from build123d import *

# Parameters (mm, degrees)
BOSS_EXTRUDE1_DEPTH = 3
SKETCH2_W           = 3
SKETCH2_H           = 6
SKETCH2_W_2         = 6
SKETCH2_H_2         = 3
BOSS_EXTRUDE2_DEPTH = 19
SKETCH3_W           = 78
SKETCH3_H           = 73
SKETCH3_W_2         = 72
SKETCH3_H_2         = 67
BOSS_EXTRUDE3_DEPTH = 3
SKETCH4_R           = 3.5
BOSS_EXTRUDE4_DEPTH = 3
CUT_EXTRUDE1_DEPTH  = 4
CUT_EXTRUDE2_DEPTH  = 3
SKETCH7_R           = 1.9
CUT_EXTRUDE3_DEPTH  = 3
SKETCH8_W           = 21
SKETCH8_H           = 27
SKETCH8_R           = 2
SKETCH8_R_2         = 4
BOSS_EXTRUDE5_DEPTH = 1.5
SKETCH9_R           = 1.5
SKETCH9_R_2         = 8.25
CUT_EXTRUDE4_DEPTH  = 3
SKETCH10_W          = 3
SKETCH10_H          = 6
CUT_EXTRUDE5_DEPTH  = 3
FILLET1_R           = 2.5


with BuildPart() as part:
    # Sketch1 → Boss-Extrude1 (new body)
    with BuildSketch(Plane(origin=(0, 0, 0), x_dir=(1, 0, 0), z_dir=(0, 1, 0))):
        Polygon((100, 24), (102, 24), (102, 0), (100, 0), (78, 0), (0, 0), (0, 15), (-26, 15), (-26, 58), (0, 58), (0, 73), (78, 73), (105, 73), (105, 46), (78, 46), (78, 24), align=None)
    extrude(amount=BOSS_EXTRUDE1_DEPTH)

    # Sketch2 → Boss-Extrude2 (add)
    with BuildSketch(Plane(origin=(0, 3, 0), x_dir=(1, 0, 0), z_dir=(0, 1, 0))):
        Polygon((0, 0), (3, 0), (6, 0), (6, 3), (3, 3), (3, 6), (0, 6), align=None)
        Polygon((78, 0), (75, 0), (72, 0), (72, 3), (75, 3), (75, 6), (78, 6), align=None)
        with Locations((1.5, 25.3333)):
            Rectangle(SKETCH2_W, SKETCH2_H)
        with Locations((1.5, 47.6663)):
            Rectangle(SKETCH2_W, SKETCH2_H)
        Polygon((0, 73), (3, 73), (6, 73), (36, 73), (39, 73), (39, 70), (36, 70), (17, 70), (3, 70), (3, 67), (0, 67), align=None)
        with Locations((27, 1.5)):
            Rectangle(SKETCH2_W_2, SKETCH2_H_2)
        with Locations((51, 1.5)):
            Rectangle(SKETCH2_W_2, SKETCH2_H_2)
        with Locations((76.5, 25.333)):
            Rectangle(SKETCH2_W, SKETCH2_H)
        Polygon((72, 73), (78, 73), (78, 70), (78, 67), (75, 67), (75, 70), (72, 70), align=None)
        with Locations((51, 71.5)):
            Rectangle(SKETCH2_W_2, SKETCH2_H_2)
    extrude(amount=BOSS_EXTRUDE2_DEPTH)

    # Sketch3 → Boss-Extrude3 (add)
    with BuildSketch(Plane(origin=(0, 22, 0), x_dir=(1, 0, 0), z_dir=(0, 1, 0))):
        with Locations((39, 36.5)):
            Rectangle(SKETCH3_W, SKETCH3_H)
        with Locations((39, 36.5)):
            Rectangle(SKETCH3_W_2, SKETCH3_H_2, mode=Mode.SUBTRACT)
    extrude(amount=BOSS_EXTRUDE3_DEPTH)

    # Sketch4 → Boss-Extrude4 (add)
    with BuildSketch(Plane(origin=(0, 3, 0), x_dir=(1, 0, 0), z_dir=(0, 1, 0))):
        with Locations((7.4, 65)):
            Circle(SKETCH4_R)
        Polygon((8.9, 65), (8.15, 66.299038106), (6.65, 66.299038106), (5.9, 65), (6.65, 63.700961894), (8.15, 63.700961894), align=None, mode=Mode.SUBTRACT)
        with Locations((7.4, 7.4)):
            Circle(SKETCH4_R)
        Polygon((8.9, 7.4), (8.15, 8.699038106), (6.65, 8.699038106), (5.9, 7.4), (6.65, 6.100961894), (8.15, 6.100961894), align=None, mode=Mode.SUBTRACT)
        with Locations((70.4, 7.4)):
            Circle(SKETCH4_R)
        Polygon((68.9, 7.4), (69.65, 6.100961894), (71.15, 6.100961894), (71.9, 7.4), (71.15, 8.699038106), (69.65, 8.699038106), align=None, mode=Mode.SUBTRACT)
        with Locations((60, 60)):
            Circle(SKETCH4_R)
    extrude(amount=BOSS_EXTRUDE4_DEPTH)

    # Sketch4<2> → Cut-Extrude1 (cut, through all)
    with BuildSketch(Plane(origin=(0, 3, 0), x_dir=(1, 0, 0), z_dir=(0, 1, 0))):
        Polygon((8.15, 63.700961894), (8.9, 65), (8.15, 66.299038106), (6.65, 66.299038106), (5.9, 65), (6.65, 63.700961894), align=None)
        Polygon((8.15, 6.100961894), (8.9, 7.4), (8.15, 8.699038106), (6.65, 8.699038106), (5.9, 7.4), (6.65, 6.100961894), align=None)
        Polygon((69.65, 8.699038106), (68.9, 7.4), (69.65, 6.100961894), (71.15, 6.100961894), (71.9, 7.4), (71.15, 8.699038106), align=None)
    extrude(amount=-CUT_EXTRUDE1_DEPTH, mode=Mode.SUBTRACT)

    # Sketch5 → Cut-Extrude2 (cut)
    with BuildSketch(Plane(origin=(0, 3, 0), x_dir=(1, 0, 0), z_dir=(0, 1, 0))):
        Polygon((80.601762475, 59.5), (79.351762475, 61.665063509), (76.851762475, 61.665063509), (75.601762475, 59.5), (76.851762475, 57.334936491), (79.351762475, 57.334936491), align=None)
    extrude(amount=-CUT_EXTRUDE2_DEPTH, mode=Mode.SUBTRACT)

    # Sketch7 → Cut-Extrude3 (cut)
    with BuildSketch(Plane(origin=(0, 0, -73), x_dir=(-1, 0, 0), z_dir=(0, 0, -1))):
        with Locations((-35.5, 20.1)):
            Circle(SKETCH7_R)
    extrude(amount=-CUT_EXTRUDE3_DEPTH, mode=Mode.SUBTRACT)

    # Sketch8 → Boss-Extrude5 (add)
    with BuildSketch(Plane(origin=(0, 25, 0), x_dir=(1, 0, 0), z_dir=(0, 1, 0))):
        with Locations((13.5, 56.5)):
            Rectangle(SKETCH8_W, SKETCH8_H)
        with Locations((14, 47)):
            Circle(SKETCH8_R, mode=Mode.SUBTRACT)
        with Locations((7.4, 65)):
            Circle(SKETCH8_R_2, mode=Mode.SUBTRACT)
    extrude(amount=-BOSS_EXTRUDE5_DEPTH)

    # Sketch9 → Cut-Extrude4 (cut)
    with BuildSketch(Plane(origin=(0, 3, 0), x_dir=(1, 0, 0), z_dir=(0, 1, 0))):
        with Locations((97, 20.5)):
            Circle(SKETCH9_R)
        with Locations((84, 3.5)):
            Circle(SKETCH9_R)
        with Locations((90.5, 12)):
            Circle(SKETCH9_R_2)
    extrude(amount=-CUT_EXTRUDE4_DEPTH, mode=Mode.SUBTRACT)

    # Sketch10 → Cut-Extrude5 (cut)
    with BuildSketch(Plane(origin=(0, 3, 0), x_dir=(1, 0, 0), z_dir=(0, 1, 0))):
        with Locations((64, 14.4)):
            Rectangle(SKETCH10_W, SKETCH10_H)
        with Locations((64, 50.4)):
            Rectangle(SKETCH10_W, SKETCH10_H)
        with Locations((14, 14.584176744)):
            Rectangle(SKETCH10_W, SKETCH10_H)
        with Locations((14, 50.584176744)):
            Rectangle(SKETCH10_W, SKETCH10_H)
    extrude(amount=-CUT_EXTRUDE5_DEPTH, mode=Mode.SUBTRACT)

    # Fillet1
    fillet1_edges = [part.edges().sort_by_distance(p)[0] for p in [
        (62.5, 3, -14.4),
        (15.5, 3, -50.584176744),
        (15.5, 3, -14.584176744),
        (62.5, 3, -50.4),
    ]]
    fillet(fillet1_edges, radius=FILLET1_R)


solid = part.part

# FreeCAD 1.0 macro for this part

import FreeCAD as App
import Part
import Sketcher
Q = App.Units.Quantity


def edges_at(feature, points):
    """Names of the edges that pass closest to the given points."""
    edges = feature.Shape.Edges
    near = lambda p: min(range(len(edges)), key=lambda i: edges[i].distToShape(Part.Vertex(*p))[0])
    return sorted({f"Edge{near(p) + 1}" for p in points})

doc = App.newDocument("Part")
body = doc.addObject("PartDesign::Body", "Body")

# Sketch on XZ plane
sketch1 = body.newObject("Sketcher::SketchObject", "Sketch")
sketch1.AttachmentSupport = (doc.getObject("XZ_Plane"), [""])
sketch1.MapMode = "FlatFace"
sketch1.addGeometry(Part.LineSegment(App.Vector(102, -24, 0), App.Vector(78, -24, 0)), False)
sketch1.addGeometry(Part.LineSegment(App.Vector(78, -24, 0), App.Vector(78, -46, 0)), False)
sketch1.addGeometry(Part.LineSegment(App.Vector(78, -46, 0), App.Vector(105, -46, 0)), False)
sketch1.addGeometry(Part.LineSegment(App.Vector(105, -46, 0), App.Vector(105, -73, 0)), False)
sketch1.addGeometry(Part.LineSegment(App.Vector(105, -73, 0), App.Vector(0, -73, 0)), False)
sketch1.addGeometry(Part.LineSegment(App.Vector(0, -73, 0), App.Vector(0, -58, 0)), False)
sketch1.addGeometry(Part.LineSegment(App.Vector(0, -58, 0), App.Vector(-26, -58, 0)), False)
sketch1.addGeometry(Part.LineSegment(App.Vector(-26, -58, 0), App.Vector(-26, -15, 0)), False)
sketch1.addGeometry(Part.LineSegment(App.Vector(-26, -15, 0), App.Vector(0, -15, 0)), False)
sketch1.addGeometry(Part.LineSegment(App.Vector(0, -15, 0), App.Vector(0, 0, 0)), False)
sketch1.addGeometry(Part.LineSegment(App.Vector(0, 0, 0), App.Vector(102, 0, 0)), False)
sketch1.addGeometry(Part.LineSegment(App.Vector(102, 0, 0), App.Vector(102, -24, 0)), False)
sketch1.addConstraint(Sketcher.Constraint("Coincident", 0, 2, 1, 1))
sketch1.addConstraint(Sketcher.Constraint("Coincident", 1, 2, 2, 1))
sketch1.addConstraint(Sketcher.Constraint("Coincident", 2, 2, 3, 1))
sketch1.addConstraint(Sketcher.Constraint("Coincident", 3, 2, 4, 1))
sketch1.addConstraint(Sketcher.Constraint("Coincident", 4, 2, 5, 1))
sketch1.addConstraint(Sketcher.Constraint("Coincident", 5, 2, 6, 1))
sketch1.addConstraint(Sketcher.Constraint("Coincident", 6, 2, 7, 1))
sketch1.addConstraint(Sketcher.Constraint("Coincident", 7, 2, 8, 1))
sketch1.addConstraint(Sketcher.Constraint("Coincident", 8, 2, 9, 1))
sketch1.addConstraint(Sketcher.Constraint("Coincident", 9, 2, 10, 1))
sketch1.addConstraint(Sketcher.Constraint("Coincident", 10, 2, 11, 1))
sketch1.addConstraint(Sketcher.Constraint("Coincident", 11, 2, 0, 1))
sketch1.addConstraint(Sketcher.Constraint("Horizontal", 0))
sketch1.addConstraint(Sketcher.Constraint("Vertical", 1))
sketch1.addConstraint(Sketcher.Constraint("Horizontal", 2))
sketch1.addConstraint(Sketcher.Constraint("Vertical", 3))
sketch1.addConstraint(Sketcher.Constraint("Horizontal", 4))
sketch1.addConstraint(Sketcher.Constraint("Vertical", 5))
sketch1.addConstraint(Sketcher.Constraint("Horizontal", 6))
sketch1.addConstraint(Sketcher.Constraint("Vertical", 7))
sketch1.addConstraint(Sketcher.Constraint("Horizontal", 8))
sketch1.addConstraint(Sketcher.Constraint("Vertical", 9))
sketch1.addConstraint(Sketcher.Constraint("Horizontal", 10))
sketch1.addConstraint(Sketcher.Constraint("Vertical", 11))
sketch1.addConstraint(Sketcher.Constraint("Coincident", 9, 2, -1, 1))
sketch1.addConstraint(Sketcher.Constraint("PointOnObject", 4, 2, -2))
sketch1.addConstraint(Sketcher.Constraint("Equal", 2, 3))
sketch1.addConstraint(Sketcher.Constraint("Equal", 5, 9))
sketch1.addConstraint(Sketcher.Constraint("Equal", 0, 11))
sketch1.addConstraint(Sketcher.Constraint("DistanceX", 0, 2, 0, 1, Q("24 mm")))
sketch1.addConstraint(Sketcher.Constraint("DistanceX", 2, 1, 2, 2, Q("27 mm")))
sketch1.addConstraint(Sketcher.Constraint("DistanceX", 4, 2, 4, 1, Q("105 mm")))
sketch1.addConstraint(Sketcher.Constraint("DistanceX", 6, 2, 6, 1, Q("26 mm")))
sketch1.addConstraint(Sketcher.Constraint("DistanceY", 1, 2, 1, 1, Q("22 mm")))
sketch1.addConstraint(Sketcher.Constraint("DistanceY", 5, 1, 5, 2, Q("15 mm")))
pad1 = body.newObject("PartDesign::Pad", "Pad")
pad1.Profile = sketch1
pad1.Length = 3
pad1.Reversed = True

# Sketch on XZ plane
sketch2 = body.newObject("Sketcher::SketchObject", "Sketch001")
sketch2.AttachmentSupport = (doc.getObject("XZ_Plane"), [""])
sketch2.MapMode = "FlatFace"
sketch2.AttachmentOffset = App.Placement(App.Vector(0, 0, -3), App.Rotation())
sketch2.addGeometry(Part.LineSegment(App.Vector(0, 0, 0), App.Vector(6, 0, 0)), False)
sketch2.addGeometry(Part.LineSegment(App.Vector(6, 0, 0), App.Vector(6, -3, 0)), False)
sketch2.addGeometry(Part.LineSegment(App.Vector(6, -3, 0), App.Vector(3, -3, 0)), False)
sketch2.addGeometry(Part.LineSegment(App.Vector(3, -3, 0), App.Vector(3, -6, 0)), False)
sketch2.addGeometry(Part.LineSegment(App.Vector(3, -6, 0), App.Vector(0, -6, 0)), False)
sketch2.addGeometry(Part.LineSegment(App.Vector(0, -6, 0), App.Vector(0, 0, 0)), False)
sketch2.addGeometry(Part.LineSegment(App.Vector(72, 0, 0), App.Vector(78, 0, 0)), False)
sketch2.addGeometry(Part.LineSegment(App.Vector(78, 0, 0), App.Vector(78, -6, 0)), False)
sketch2.addGeometry(Part.LineSegment(App.Vector(78, -6, 0), App.Vector(75, -6, 0)), False)
sketch2.addGeometry(Part.LineSegment(App.Vector(75, -6, 0), App.Vector(75, -3, 0)), False)
sketch2.addGeometry(Part.LineSegment(App.Vector(75, -3, 0), App.Vector(72, -3, 0)), False)
sketch2.addGeometry(Part.LineSegment(App.Vector(72, -3, 0), App.Vector(72, 0, 0)), False)
sketch2.addGeometry(Part.LineSegment(App.Vector(0, -28.3, 0), App.Vector(0, -22.3, 0)), False)
sketch2.addGeometry(Part.LineSegment(App.Vector(0, -22.3, 0), App.Vector(3, -22.3, 0)), False)
sketch2.addGeometry(Part.LineSegment(App.Vector(3, -22.3, 0), App.Vector(3, -28.3, 0)), False)
sketch2.addGeometry(Part.LineSegment(App.Vector(3, -28.3, 0), App.Vector(0, -28.3, 0)), False)
sketch2.addGeometry(Part.LineSegment(App.Vector(0, -50.7, 0), App.Vector(0, -44.7, 0)), False)
sketch2.addGeometry(Part.LineSegment(App.Vector(0, -44.7, 0), App.Vector(3, -44.7, 0)), False)
sketch2.addGeometry(Part.LineSegment(App.Vector(3, -44.7, 0), App.Vector(3, -50.7, 0)), False)
sketch2.addGeometry(Part.LineSegment(App.Vector(3, -50.7, 0), App.Vector(0, -50.7, 0)), False)
sketch2.addGeometry(Part.LineSegment(App.Vector(39, -73, 0), App.Vector(0, -73, 0)), False)
sketch2.addGeometry(Part.LineSegment(App.Vector(0, -73, 0), App.Vector(0, -67, 0)), False)
sketch2.addGeometry(Part.LineSegment(App.Vector(0, -67, 0), App.Vector(3, -67, 0)), False)
sketch2.addGeometry(Part.LineSegment(App.Vector(3, -67, 0), App.Vector(3, -70, 0)), False)
sketch2.addGeometry(Part.LineSegment(App.Vector(3, -70, 0), App.Vector(39, -70, 0)), False)
sketch2.addGeometry(Part.LineSegment(App.Vector(39, -70, 0), App.Vector(39, -73, 0)), False)
sketch2.addGeometry(Part.LineSegment(App.Vector(24, -3, 0), App.Vector(24, 0, 0)), False)
sketch2.addGeometry(Part.LineSegment(App.Vector(24, 0, 0), App.Vector(30, 0, 0)), False)
sketch2.addGeometry(Part.LineSegment(App.Vector(30, 0, 0), App.Vector(30, -3, 0)), False)
sketch2.addGeometry(Part.LineSegment(App.Vector(30, -3, 0), App.Vector(24, -3, 0)), False)
sketch2.addGeometry(Part.LineSegment(App.Vector(48, -3, 0), App.Vector(48, 0, 0)), False)
sketch2.addGeometry(Part.LineSegment(App.Vector(48, 0, 0), App.Vector(54, 0, 0)), False)
sketch2.addGeometry(Part.LineSegment(App.Vector(54, 0, 0), App.Vector(54, -3, 0)), False)
sketch2.addGeometry(Part.LineSegment(App.Vector(54, -3, 0), App.Vector(48, -3, 0)), False)
sketch2.addGeometry(Part.LineSegment(App.Vector(75, -28.3, 0), App.Vector(75, -22.3, 0)), False)
sketch2.addGeometry(Part.LineSegment(App.Vector(75, -22.3, 0), App.Vector(78, -22.3, 0)), False)
sketch2.addGeometry(Part.LineSegment(App.Vector(78, -22.3, 0), App.Vector(78, -28.3, 0)), False)
sketch2.addGeometry(Part.LineSegment(App.Vector(78, -28.3, 0), App.Vector(75, -28.3, 0)), False)
sketch2.addGeometry(Part.LineSegment(App.Vector(78, -73, 0), App.Vector(72, -73, 0)), False)
sketch2.addGeometry(Part.LineSegment(App.Vector(72, -73, 0), App.Vector(72, -70, 0)), False)
sketch2.addGeometry(Part.LineSegment(App.Vector(72, -70, 0), App.Vector(75, -70, 0)), False)
sketch2.addGeometry(Part.LineSegment(App.Vector(75, -70, 0), App.Vector(75, -67, 0)), False)
sketch2.addGeometry(Part.LineSegment(App.Vector(75, -67, 0), App.Vector(78, -67, 0)), False)
sketch2.addGeometry(Part.LineSegment(App.Vector(78, -67, 0), App.Vector(78, -73, 0)), False)
sketch2.addGeometry(Part.LineSegment(App.Vector(48, -73, 0), App.Vector(48, -70, 0)), False)
sketch2.addGeometry(Part.LineSegment(App.Vector(48, -70, 0), App.Vector(54, -70, 0)), False)
sketch2.addGeometry(Part.LineSegment(App.Vector(54, -70, 0), App.Vector(54, -73, 0)), False)
sketch2.addGeometry(Part.LineSegment(App.Vector(54, -73, 0), App.Vector(48, -73, 0)), False)
sketch2.addConstraint(Sketcher.Constraint("Coincident", 0, 2, 1, 1))
sketch2.addConstraint(Sketcher.Constraint("Coincident", 1, 2, 2, 1))
sketch2.addConstraint(Sketcher.Constraint("Coincident", 2, 2, 3, 1))
sketch2.addConstraint(Sketcher.Constraint("Coincident", 3, 2, 4, 1))
sketch2.addConstraint(Sketcher.Constraint("Coincident", 4, 2, 5, 1))
sketch2.addConstraint(Sketcher.Constraint("Coincident", 5, 2, 0, 1))
sketch2.addConstraint(Sketcher.Constraint("Coincident", 6, 2, 7, 1))
sketch2.addConstraint(Sketcher.Constraint("Coincident", 7, 2, 8, 1))
sketch2.addConstraint(Sketcher.Constraint("Coincident", 8, 2, 9, 1))
sketch2.addConstraint(Sketcher.Constraint("Coincident", 9, 2, 10, 1))
sketch2.addConstraint(Sketcher.Constraint("Coincident", 10, 2, 11, 1))
sketch2.addConstraint(Sketcher.Constraint("Coincident", 11, 2, 6, 1))
sketch2.addConstraint(Sketcher.Constraint("Coincident", 12, 2, 13, 1))
sketch2.addConstraint(Sketcher.Constraint("Coincident", 13, 2, 14, 1))
sketch2.addConstraint(Sketcher.Constraint("Coincident", 14, 2, 15, 1))
sketch2.addConstraint(Sketcher.Constraint("Coincident", 15, 2, 12, 1))
sketch2.addConstraint(Sketcher.Constraint("Coincident", 16, 2, 17, 1))
sketch2.addConstraint(Sketcher.Constraint("Coincident", 17, 2, 18, 1))
sketch2.addConstraint(Sketcher.Constraint("Coincident", 18, 2, 19, 1))
sketch2.addConstraint(Sketcher.Constraint("Coincident", 19, 2, 16, 1))
sketch2.addConstraint(Sketcher.Constraint("Coincident", 20, 2, 21, 1))
sketch2.addConstraint(Sketcher.Constraint("Coincident", 21, 2, 22, 1))
sketch2.addConstraint(Sketcher.Constraint("Coincident", 22, 2, 23, 1))
sketch2.addConstraint(Sketcher.Constraint("Coincident", 23, 2, 24, 1))
sketch2.addConstraint(Sketcher.Constraint("Coincident", 24, 2, 25, 1))
sketch2.addConstraint(Sketcher.Constraint("Coincident", 25, 2, 20, 1))
sketch2.addConstraint(Sketcher.Constraint("Coincident", 26, 2, 27, 1))
sketch2.addConstraint(Sketcher.Constraint("Coincident", 27, 2, 28, 1))
sketch2.addConstraint(Sketcher.Constraint("Coincident", 28, 2, 29, 1))
sketch2.addConstraint(Sketcher.Constraint("Coincident", 29, 2, 26, 1))
sketch2.addConstraint(Sketcher.Constraint("Coincident", 30, 2, 31, 1))
sketch2.addConstraint(Sketcher.Constraint("Coincident", 31, 2, 32, 1))
sketch2.addConstraint(Sketcher.Constraint("Coincident", 32, 2, 33, 1))
sketch2.addConstraint(Sketcher.Constraint("Coincident", 33, 2, 30, 1))
sketch2.addConstraint(Sketcher.Constraint("Coincident", 34, 2, 35, 1))
sketch2.addConstraint(Sketcher.Constraint("Coincident", 35, 2, 36, 1))
sketch2.addConstraint(Sketcher.Constraint("Coincident", 36, 2, 37, 1))
sketch2.addConstraint(Sketcher.Constraint("Coincident", 37, 2, 34, 1))
sketch2.addConstraint(Sketcher.Constraint("Coincident", 38, 2, 39, 1))
sketch2.addConstraint(Sketcher.Constraint("Coincident", 39, 2, 40, 1))
sketch2.addConstraint(Sketcher.Constraint("Coincident", 40, 2, 41, 1))
sketch2.addConstraint(Sketcher.Constraint("Coincident", 41, 2, 42, 1))
sketch2.addConstraint(Sketcher.Constraint("Coincident", 42, 2, 43, 1))
sketch2.addConstraint(Sketcher.Constraint("Coincident", 43, 2, 38, 1))
sketch2.addConstraint(Sketcher.Constraint("Coincident", 44, 2, 45, 1))
sketch2.addConstraint(Sketcher.Constraint("Coincident", 45, 2, 46, 1))
sketch2.addConstraint(Sketcher.Constraint("Coincident", 46, 2, 47, 1))
sketch2.addConstraint(Sketcher.Constraint("Coincident", 47, 2, 44, 1))
sketch2.addConstraint(Sketcher.Constraint("Horizontal", 0))
sketch2.addConstraint(Sketcher.Constraint("Vertical", 1))
sketch2.addConstraint(Sketcher.Constraint("Horizontal", 2))
sketch2.addConstraint(Sketcher.Constraint("Vertical", 3))
sketch2.addConstraint(Sketcher.Constraint("Horizontal", 4))
sketch2.addConstraint(Sketcher.Constraint("Vertical", 5))
sketch2.addConstraint(Sketcher.Constraint("Horizontal", 6))
sketch2.addConstraint(Sketcher.Constraint("Vertical", 7))
sketch2.addConstraint(Sketcher.Constraint("Horizontal", 8))
sketch2.addConstraint(Sketcher.Constraint("Vertical", 9))
sketch2.addConstraint(Sketcher.Constraint("Horizontal", 10))
sketch2.addConstraint(Sketcher.Constraint("Vertical", 11))
sketch2.addConstraint(Sketcher.Constraint("Vertical", 12))
sketch2.addConstraint(Sketcher.Constraint("Horizontal", 13))
sketch2.addConstraint(Sketcher.Constraint("Vertical", 14))
sketch2.addConstraint(Sketcher.Constraint("Horizontal", 15))
sketch2.addConstraint(Sketcher.Constraint("Vertical", 16))
sketch2.addConstraint(Sketcher.Constraint("Horizontal", 17))
sketch2.addConstraint(Sketcher.Constraint("Vertical", 18))
sketch2.addConstraint(Sketcher.Constraint("Horizontal", 19))
sketch2.addConstraint(Sketcher.Constraint("Horizontal", 20))
sketch2.addConstraint(Sketcher.Constraint("Vertical", 21))
sketch2.addConstraint(Sketcher.Constraint("Horizontal", 22))
sketch2.addConstraint(Sketcher.Constraint("Vertical", 23))
sketch2.addConstraint(Sketcher.Constraint("Horizontal", 24))
sketch2.addConstraint(Sketcher.Constraint("Vertical", 25))
sketch2.addConstraint(Sketcher.Constraint("Vertical", 26))
sketch2.addConstraint(Sketcher.Constraint("Horizontal", 27))
sketch2.addConstraint(Sketcher.Constraint("Vertical", 28))
sketch2.addConstraint(Sketcher.Constraint("Horizontal", 29))
sketch2.addConstraint(Sketcher.Constraint("Vertical", 30))
sketch2.addConstraint(Sketcher.Constraint("Horizontal", 31))
sketch2.addConstraint(Sketcher.Constraint("Vertical", 32))
sketch2.addConstraint(Sketcher.Constraint("Horizontal", 33))
sketch2.addConstraint(Sketcher.Constraint("Vertical", 34))
sketch2.addConstraint(Sketcher.Constraint("Horizontal", 35))
sketch2.addConstraint(Sketcher.Constraint("Vertical", 36))
sketch2.addConstraint(Sketcher.Constraint("Horizontal", 37))
sketch2.addConstraint(Sketcher.Constraint("Horizontal", 38))
sketch2.addConstraint(Sketcher.Constraint("Vertical", 39))
sketch2.addConstraint(Sketcher.Constraint("Horizontal", 40))
sketch2.addConstraint(Sketcher.Constraint("Vertical", 41))
sketch2.addConstraint(Sketcher.Constraint("Horizontal", 42))
sketch2.addConstraint(Sketcher.Constraint("Vertical", 43))
sketch2.addConstraint(Sketcher.Constraint("Vertical", 44))
sketch2.addConstraint(Sketcher.Constraint("Horizontal", 45))
sketch2.addConstraint(Sketcher.Constraint("Vertical", 46))
sketch2.addConstraint(Sketcher.Constraint("Horizontal", 47))
sketch2.addConstraint(Sketcher.Constraint("Coincident", 5, 2, -1, 1))
sketch2.addConstraint(Sketcher.Constraint("PointOnObject", 6, 2, -1))
sketch2.addConstraint(Sketcher.Constraint("PointOnObject", 12, 2, -2))
sketch2.addConstraint(Sketcher.Constraint("PointOnObject", 16, 2, -2))
sketch2.addConstraint(Sketcher.Constraint("PointOnObject", 20, 2, -2))
sketch2.addConstraint(Sketcher.Constraint("PointOnObject", 26, 2, -1))
sketch2.addConstraint(Sketcher.Constraint("PointOnObject", 30, 2, -1))
sketch2.addConstraint(Sketcher.Constraint("Horizontal", 4, 2, 7, 2))
sketch2.addConstraint(Sketcher.Constraint("Horizontal", 2, 2, 9, 2))
sketch2.addConstraint(Sketcher.Constraint("Horizontal", 10, 2, 28, 2))
sketch2.addConstraint(Sketcher.Constraint("Horizontal", 29, 2, 32, 2))
sketch2.addConstraint(Sketcher.Constraint("Horizontal", 25, 2, 38, 2))
sketch2.addConstraint(Sketcher.Constraint("Horizontal", 24, 2, 39, 2))
sketch2.addConstraint(Sketcher.Constraint("Horizontal", 22, 2, 41, 2))
sketch2.addConstraint(Sketcher.Constraint("Horizontal", 40, 2, 44, 2))
sketch2.addConstraint(Sketcher.Constraint("Horizontal", 43, 2, 46, 2))
sketch2.addConstraint(Sketcher.Constraint("Vertical", 3, 2, 13, 2))
sketch2.addConstraint(Sketcher.Constraint("Vertical", 14, 2, 17, 2))
sketch2.addConstraint(Sketcher.Constraint("Vertical", 18, 2, 22, 2))
sketch2.addConstraint(Sketcher.Constraint("Vertical", 9, 2, 34, 2))
sketch2.addConstraint(Sketcher.Constraint("Vertical", 7, 2, 35, 2))
sketch2.addConstraint(Sketcher.Constraint("Vertical", 11, 2, 38, 2))
sketch2.addConstraint(Sketcher.Constraint("Vertical", 37, 2, 40, 2))
sketch2.addConstraint(Sketcher.Constraint("Vertical", 36, 2, 42, 2))
sketch2.addConstraint(Sketcher.Constraint("Vertical", 33, 2, 44, 2))
sketch2.addConstraint(Sketcher.Constraint("Vertical", 32, 2, 45, 2))
sketch2.addConstraint(Sketcher.Constraint("Equal", 2, 4))
sketch2.addConstraint(Sketcher.Constraint("Equal", 0, 6))
sketch2.addConstraint(Sketcher.Constraint("Equal", 4, 8))
sketch2.addConstraint(Sketcher.Constraint("Equal", 6, 27))
sketch2.addConstraint(Sketcher.Constraint("Equal", 29, 31))
sketch2.addConstraint(Sketcher.Constraint("Equal", 42, 1))
sketch2.addConstraint(Sketcher.Constraint("Equal", 1, 3))
sketch2.addConstraint(Sketcher.Constraint("Equal", 7, 12))
sketch2.addConstraint(Sketcher.Constraint("Equal", 14, 16))
sketch2.addConstraint(Sketcher.Constraint("Equal", 18, 21))
sketch2.addConstraint(Sketcher.Constraint("Equal", 11, 23))
sketch2.addConstraint(Sketcher.Constraint("Equal", 21, 34))
sketch2.addConstraint(Sketcher.Constraint("DistanceX", 0, 1, 0, 2, Q("6 mm")))
sketch2.addConstraint(Sketcher.Constraint("DistanceX", 20, 2, 20, 1, Q("39 mm")))
sketch2.addConstraint(Sketcher.Constraint("DistanceX", -1, 1, 6, 2, Q("78 mm")))
sketch2.addConstraint(Sketcher.Constraint("DistanceY", 20, 2, -1, 1, Q("73 mm")))
sketch2.addConstraint(Sketcher.Constraint("DistanceX", -1, 1, 26, 2, Q("24 mm")))
sketch2.addConstraint(Sketcher.Constraint("DistanceX", -1, 1, 30, 2, Q("48 mm")))
sketch2.addConstraint(Sketcher.Constraint("DistanceY", 34, 2, -1, 1, Q("22.333 mm")))
sketch2.addConstraint(Sketcher.Constraint("DistanceY", 16, 2, 15, 2, Q("16.333 mm")))
sketch2.addConstraint(Sketcher.Constraint("DistanceY", 12, 2, -1, 1, Q("22.3333 mm")))
pad2 = body.newObject("PartDesign::Pad", "Pad001")
pad2.Profile = sketch2
pad2.Length = 19
pad2.Reversed = True

# Sketch on XZ plane
sketch3 = body.newObject("Sketcher::SketchObject", "Sketch002")
sketch3.AttachmentSupport = (doc.getObject("XZ_Plane"), [""])
sketch3.MapMode = "FlatFace"
sketch3.AttachmentOffset = App.Placement(App.Vector(0, 0, -22), App.Rotation())
sketch3.addGeometry(Part.LineSegment(App.Vector(0, -73, 0), App.Vector(0, 0, 0)), False)
sketch3.addGeometry(Part.LineSegment(App.Vector(0, 0, 0), App.Vector(78, 0, 0)), False)
sketch3.addGeometry(Part.LineSegment(App.Vector(78, 0, 0), App.Vector(78, -73, 0)), False)
sketch3.addGeometry(Part.LineSegment(App.Vector(78, -73, 0), App.Vector(0, -73, 0)), False)
sketch3.addGeometry(Part.LineSegment(App.Vector(75, -3, 0), App.Vector(3, -3, 0)), False)
sketch3.addGeometry(Part.LineSegment(App.Vector(3, -3, 0), App.Vector(3, -70, 0)), False)
sketch3.addGeometry(Part.LineSegment(App.Vector(3, -70, 0), App.Vector(75, -70, 0)), False)
sketch3.addGeometry(Part.LineSegment(App.Vector(75, -70, 0), App.Vector(75, -3, 0)), False)
sketch3.addConstraint(Sketcher.Constraint("Coincident", 0, 2, 1, 1))
sketch3.addConstraint(Sketcher.Constraint("Coincident", 1, 2, 2, 1))
sketch3.addConstraint(Sketcher.Constraint("Coincident", 2, 2, 3, 1))
sketch3.addConstraint(Sketcher.Constraint("Coincident", 3, 2, 0, 1))
sketch3.addConstraint(Sketcher.Constraint("Coincident", 4, 2, 5, 1))
sketch3.addConstraint(Sketcher.Constraint("Coincident", 5, 2, 6, 1))
sketch3.addConstraint(Sketcher.Constraint("Coincident", 6, 2, 7, 1))
sketch3.addConstraint(Sketcher.Constraint("Coincident", 7, 2, 4, 1))
sketch3.addConstraint(Sketcher.Constraint("Vertical", 0))
sketch3.addConstraint(Sketcher.Constraint("Horizontal", 1))
sketch3.addConstraint(Sketcher.Constraint("Vertical", 2))
sketch3.addConstraint(Sketcher.Constraint("Horizontal", 3))
sketch3.addConstraint(Sketcher.Constraint("Horizontal", 4))
sketch3.addConstraint(Sketcher.Constraint("Vertical", 5))
sketch3.addConstraint(Sketcher.Constraint("Horizontal", 6))
sketch3.addConstraint(Sketcher.Constraint("Vertical", 7))
sketch3.addConstraint(Sketcher.Constraint("Coincident", 0, 2, -1, 1))
sketch3.addConstraint(Sketcher.Constraint("DistanceX", 1, 1, 1, 2, Q("78 mm")))
sketch3.addConstraint(Sketcher.Constraint("DistanceX", 4, 2, 4, 1, Q("72 mm")))
sketch3.addConstraint(Sketcher.Constraint("DistanceY", 0, 1, 0, 2, Q("73 mm")))
sketch3.addConstraint(Sketcher.Constraint("DistanceY", 5, 2, 5, 1, Q("67 mm")))
sketch3.addConstraint(Sketcher.Constraint("DistanceX", -1, 1, 4, 2, Q("3 mm")))
sketch3.addConstraint(Sketcher.Constraint("DistanceY", 4, 2, -1, 1, Q("3 mm")))
pad3 = body.newObject("PartDesign::Pad", "Pad002")
pad3.Profile = sketch3
pad3.Length = 3
pad3.Reversed = True

# Sketch on XZ plane
sketch4 = body.newObject("Sketcher::SketchObject", "Sketch003")
sketch4.AttachmentSupport = (doc.getObject("XZ_Plane"), [""])
sketch4.MapMode = "FlatFace"
sketch4.AttachmentOffset = App.Placement(App.Vector(0, 0, -3), App.Rotation())
sketch4.addGeometry(Part.Circle(App.Vector(7.4, -65, 0), App.Vector(0, 0, 1), 3.5), False)
sketch4.addGeometry(Part.LineSegment(App.Vector(8.2, -66.3, 0), App.Vector(8.9, -65, 0)), False)
sketch4.addGeometry(Part.LineSegment(App.Vector(8.9, -65, 0), App.Vector(8.2, -63.7, 0)), False)
sketch4.addGeometry(Part.LineSegment(App.Vector(8.2, -63.7, 0), App.Vector(6.7, -63.7, 0)), False)
sketch4.addGeometry(Part.LineSegment(App.Vector(6.7, -63.7, 0), App.Vector(5.9, -65, 0)), False)
sketch4.addGeometry(Part.LineSegment(App.Vector(5.9, -65, 0), App.Vector(6.7, -66.3, 0)), False)
sketch4.addGeometry(Part.LineSegment(App.Vector(6.7, -66.3, 0), App.Vector(8.2, -66.3, 0)), False)
sketch4.addGeometry(Part.Circle(App.Vector(7.4, -7.4, 0), App.Vector(0, 0, 1), 3.5), False)
sketch4.addGeometry(Part.LineSegment(App.Vector(8.2, -8.7, 0), App.Vector(8.9, -7.4, 0)), False)
sketch4.addGeometry(Part.LineSegment(App.Vector(8.9, -7.4, 0), App.Vector(8.2, -6.1, 0)), False)
sketch4.addGeometry(Part.LineSegment(App.Vector(8.2, -6.1, 0), App.Vector(6.7, -6.1, 0)), False)
sketch4.addGeometry(Part.LineSegment(App.Vector(6.7, -6.1, 0), App.Vector(5.9, -7.4, 0)), False)
sketch4.addGeometry(Part.LineSegment(App.Vector(5.9, -7.4, 0), App.Vector(6.7, -8.7, 0)), False)
sketch4.addGeometry(Part.LineSegment(App.Vector(6.7, -8.7, 0), App.Vector(8.2, -8.7, 0)), False)
sketch4.addGeometry(Part.Circle(App.Vector(70.4, -7.4, 0), App.Vector(0, 0, 1), 3.5), False)
sketch4.addGeometry(Part.LineSegment(App.Vector(69.7, -6.1, 0), App.Vector(68.9, -7.4, 0)), False)
sketch4.addGeometry(Part.LineSegment(App.Vector(68.9, -7.4, 0), App.Vector(69.7, -8.7, 0)), False)
sketch4.addGeometry(Part.LineSegment(App.Vector(69.7, -8.7, 0), App.Vector(71.2, -8.7, 0)), False)
sketch4.addGeometry(Part.LineSegment(App.Vector(71.2, -8.7, 0), App.Vector(71.9, -7.4, 0)), False)
sketch4.addGeometry(Part.LineSegment(App.Vector(71.9, -7.4, 0), App.Vector(71.2, -6.1, 0)), False)
sketch4.addGeometry(Part.LineSegment(App.Vector(71.2, -6.1, 0), App.Vector(69.7, -6.1, 0)), False)
sketch4.addGeometry(Part.Circle(App.Vector(60, -60, 0), App.Vector(0, 0, 1), 3.5), False)
sketch4.addConstraint(Sketcher.Constraint("Coincident", 1, 2, 2, 1))
sketch4.addConstraint(Sketcher.Constraint("Coincident", 2, 2, 3, 1))
sketch4.addConstraint(Sketcher.Constraint("Coincident", 3, 2, 4, 1))
sketch4.addConstraint(Sketcher.Constraint("Coincident", 4, 2, 5, 1))
sketch4.addConstraint(Sketcher.Constraint("Coincident", 5, 2, 6, 1))
sketch4.addConstraint(Sketcher.Constraint("Coincident", 6, 2, 1, 1))
sketch4.addConstraint(Sketcher.Constraint("Coincident", 8, 2, 9, 1))
sketch4.addConstraint(Sketcher.Constraint("Coincident", 9, 2, 10, 1))
sketch4.addConstraint(Sketcher.Constraint("Coincident", 10, 2, 11, 1))
sketch4.addConstraint(Sketcher.Constraint("Coincident", 11, 2, 12, 1))
sketch4.addConstraint(Sketcher.Constraint("Coincident", 12, 2, 13, 1))
sketch4.addConstraint(Sketcher.Constraint("Coincident", 13, 2, 8, 1))
sketch4.addConstraint(Sketcher.Constraint("Coincident", 15, 2, 16, 1))
sketch4.addConstraint(Sketcher.Constraint("Coincident", 16, 2, 17, 1))
sketch4.addConstraint(Sketcher.Constraint("Coincident", 17, 2, 18, 1))
sketch4.addConstraint(Sketcher.Constraint("Coincident", 18, 2, 19, 1))
sketch4.addConstraint(Sketcher.Constraint("Coincident", 19, 2, 20, 1))
sketch4.addConstraint(Sketcher.Constraint("Coincident", 20, 2, 15, 1))
sketch4.addConstraint(Sketcher.Constraint("Horizontal", 3))
sketch4.addConstraint(Sketcher.Constraint("Horizontal", 6))
sketch4.addConstraint(Sketcher.Constraint("Horizontal", 10))
sketch4.addConstraint(Sketcher.Constraint("Horizontal", 13))
sketch4.addConstraint(Sketcher.Constraint("Horizontal", 17))
sketch4.addConstraint(Sketcher.Constraint("Horizontal", 20))
sketch4.addConstraint(Sketcher.Constraint("Equal", 0, 7))
sketch4.addConstraint(Sketcher.Constraint("Equal", 7, 14))
sketch4.addConstraint(Sketcher.Constraint("Equal", 14, 21))
sketch4.addConstraint(Sketcher.Constraint("Parallel", 1, 4))
sketch4.addConstraint(Sketcher.Constraint("Parallel", 2, 5))
sketch4.addConstraint(Sketcher.Constraint("Parallel", 4, 8))
sketch4.addConstraint(Sketcher.Constraint("Parallel", 5, 9))
sketch4.addConstraint(Sketcher.Constraint("Parallel", 8, 11))
sketch4.addConstraint(Sketcher.Constraint("Parallel", 9, 12))
sketch4.addConstraint(Sketcher.Constraint("Parallel", 11, 15))
sketch4.addConstraint(Sketcher.Constraint("Parallel", 12, 16))
sketch4.addConstraint(Sketcher.Constraint("Parallel", 15, 18))
sketch4.addConstraint(Sketcher.Constraint("Parallel", 16, 19))
sketch4.addConstraint(Sketcher.Constraint("Horizontal", 7, 3, 14, 3))
sketch4.addConstraint(Sketcher.Constraint("Horizontal", 0, 3, 1, 2))
sketch4.addConstraint(Sketcher.Constraint("Horizontal", 1, 2, 4, 2))
sketch4.addConstraint(Sketcher.Constraint("Horizontal", 14, 3, 8, 2))
sketch4.addConstraint(Sketcher.Constraint("Horizontal", 8, 2, 11, 2))
sketch4.addConstraint(Sketcher.Constraint("Horizontal", 11, 2, 15, 2))
sketch4.addConstraint(Sketcher.Constraint("Horizontal", 13, 2, 16, 2))
sketch4.addConstraint(Sketcher.Constraint("Horizontal", 15, 2, 18, 2))
sketch4.addConstraint(Sketcher.Constraint("Horizontal", 10, 2, 19, 2))
sketch4.addConstraint(Sketcher.Constraint("Vertical", 0, 3, 7, 3))
sketch4.addConstraint(Sketcher.Constraint("Vertical", 3, 2, 5, 2))
sketch4.addConstraint(Sketcher.Constraint("Vertical", 2, 2, 6, 2))
sketch4.addConstraint(Sketcher.Constraint("Vertical", 1, 2, 8, 2))
sketch4.addConstraint(Sketcher.Constraint("Vertical", 6, 2, 9, 2))
sketch4.addConstraint(Sketcher.Constraint("Vertical", 5, 2, 10, 2))
sketch4.addConstraint(Sketcher.Constraint("Vertical", 10, 2, 12, 2))
sketch4.addConstraint(Sketcher.Constraint("Equal", 13, 17))
sketch4.addConstraint(Sketcher.Constraint("Diameter", 0, Q("7 mm")))
sketch4.addConstraint(Sketcher.Constraint("Angle", 1, Q("60 deg")))
sketch4.addConstraint(Sketcher.Constraint("DistanceX", 3, 2, 3, 1, Q("1.5 mm")))
sketch4.addConstraint(Sketcher.Constraint("DistanceY", 0, 3, -1, 1, Q("65 mm")))
sketch4.addConstraint(Sketcher.Constraint("DistanceX", -1, 1, 21, 3, Q("60 mm")))
sketch4.addConstraint(Sketcher.Constraint("DistanceY", 21, 3, -1, 1, Q("60 mm")))
sketch4.addConstraint(Sketcher.Constraint("DistanceX", 7, 3, 14, 3, Q("63 mm")))
sketch4.addConstraint(Sketcher.Constraint("DistanceX", 4, 2, 1, 2, Q("3 mm")))
sketch4.addConstraint(Sketcher.Constraint("DistanceX", 8, 2, 15, 2, Q("60 mm")))
sketch4.addConstraint(Sketcher.Constraint("DistanceX", -1, 1, 0, 3, Q("7.4 mm")))
sketch4.addConstraint(Sketcher.Constraint("DistanceY", 7, 3, -1, 1, Q("7.4 mm")))
sketch4.addConstraint(Sketcher.Constraint("DistanceX", -1, 1, 1, 2, Q("8.9 mm")))
pad4 = body.newObject("PartDesign::Pad", "Pad003")
pad4.Profile = sketch4
pad4.Length = 3
pad4.Reversed = True

# Sketch on XZ plane
sketch5 = body.newObject("Sketcher::SketchObject", "Sketch004")
sketch5.AttachmentSupport = (doc.getObject("XZ_Plane"), [""])
sketch5.MapMode = "FlatFace"
sketch5.AttachmentOffset = App.Placement(App.Vector(0, 0, -3), App.Rotation())
sketch5.addGeometry(Part.LineSegment(App.Vector(8.2, -63.7, 0), App.Vector(8.9, -65, 0)), False)
sketch5.addGeometry(Part.LineSegment(App.Vector(8.9, -65, 0), App.Vector(8.2, -66.3, 0)), False)
sketch5.addGeometry(Part.LineSegment(App.Vector(8.2, -66.3, 0), App.Vector(6.7, -66.3, 0)), False)
sketch5.addGeometry(Part.LineSegment(App.Vector(6.7, -66.3, 0), App.Vector(5.9, -65, 0)), False)
sketch5.addGeometry(Part.LineSegment(App.Vector(5.9, -65, 0), App.Vector(6.7, -63.7, 0)), False)
sketch5.addGeometry(Part.LineSegment(App.Vector(6.7, -63.7, 0), App.Vector(8.2, -63.7, 0)), False)
sketch5.addGeometry(Part.LineSegment(App.Vector(8.2, -6.1, 0), App.Vector(8.9, -7.4, 0)), False)
sketch5.addGeometry(Part.LineSegment(App.Vector(8.9, -7.4, 0), App.Vector(8.2, -8.7, 0)), False)
sketch5.addGeometry(Part.LineSegment(App.Vector(8.2, -8.7, 0), App.Vector(6.7, -8.7, 0)), False)
sketch5.addGeometry(Part.LineSegment(App.Vector(6.7, -8.7, 0), App.Vector(5.9, -7.4, 0)), False)
sketch5.addGeometry(Part.LineSegment(App.Vector(5.9, -7.4, 0), App.Vector(6.7, -6.1, 0)), False)
sketch5.addGeometry(Part.LineSegment(App.Vector(6.7, -6.1, 0), App.Vector(8.2, -6.1, 0)), False)
sketch5.addGeometry(Part.LineSegment(App.Vector(69.7, -8.7, 0), App.Vector(68.9, -7.4, 0)), False)
sketch5.addGeometry(Part.LineSegment(App.Vector(68.9, -7.4, 0), App.Vector(69.7, -6.1, 0)), False)
sketch5.addGeometry(Part.LineSegment(App.Vector(69.7, -6.1, 0), App.Vector(71.2, -6.1, 0)), False)
sketch5.addGeometry(Part.LineSegment(App.Vector(71.2, -6.1, 0), App.Vector(71.9, -7.4, 0)), False)
sketch5.addGeometry(Part.LineSegment(App.Vector(71.9, -7.4, 0), App.Vector(71.2, -8.7, 0)), False)
sketch5.addGeometry(Part.LineSegment(App.Vector(71.2, -8.7, 0), App.Vector(69.7, -8.7, 0)), False)
sketch5.addConstraint(Sketcher.Constraint("Coincident", 0, 2, 1, 1))
sketch5.addConstraint(Sketcher.Constraint("Coincident", 1, 2, 2, 1))
sketch5.addConstraint(Sketcher.Constraint("Coincident", 2, 2, 3, 1))
sketch5.addConstraint(Sketcher.Constraint("Coincident", 3, 2, 4, 1))
sketch5.addConstraint(Sketcher.Constraint("Coincident", 4, 2, 5, 1))
sketch5.addConstraint(Sketcher.Constraint("Coincident", 5, 2, 0, 1))
sketch5.addConstraint(Sketcher.Constraint("Coincident", 6, 2, 7, 1))
sketch5.addConstraint(Sketcher.Constraint("Coincident", 7, 2, 8, 1))
sketch5.addConstraint(Sketcher.Constraint("Coincident", 8, 2, 9, 1))
sketch5.addConstraint(Sketcher.Constraint("Coincident", 9, 2, 10, 1))
sketch5.addConstraint(Sketcher.Constraint("Coincident", 10, 2, 11, 1))
sketch5.addConstraint(Sketcher.Constraint("Coincident", 11, 2, 6, 1))
sketch5.addConstraint(Sketcher.Constraint("Coincident", 12, 2, 13, 1))
sketch5.addConstraint(Sketcher.Constraint("Coincident", 13, 2, 14, 1))
sketch5.addConstraint(Sketcher.Constraint("Coincident", 14, 2, 15, 1))
sketch5.addConstraint(Sketcher.Constraint("Coincident", 15, 2, 16, 1))
sketch5.addConstraint(Sketcher.Constraint("Coincident", 16, 2, 17, 1))
sketch5.addConstraint(Sketcher.Constraint("Coincident", 17, 2, 12, 1))
sketch5.addConstraint(Sketcher.Constraint("Horizontal", 2))
sketch5.addConstraint(Sketcher.Constraint("Horizontal", 5))
sketch5.addConstraint(Sketcher.Constraint("Horizontal", 8))
sketch5.addConstraint(Sketcher.Constraint("Horizontal", 11))
sketch5.addConstraint(Sketcher.Constraint("Horizontal", 14))
sketch5.addConstraint(Sketcher.Constraint("Horizontal", 17))
sketch5.addConstraint(Sketcher.Constraint("Parallel", 0, 3))
sketch5.addConstraint(Sketcher.Constraint("Parallel", 1, 4))
sketch5.addConstraint(Sketcher.Constraint("Parallel", 3, 6))
sketch5.addConstraint(Sketcher.Constraint("Parallel", 4, 7))
sketch5.addConstraint(Sketcher.Constraint("Parallel", 6, 9))
sketch5.addConstraint(Sketcher.Constraint("Parallel", 7, 10))
sketch5.addConstraint(Sketcher.Constraint("Parallel", 9, 12))
sketch5.addConstraint(Sketcher.Constraint("Parallel", 10, 13))
sketch5.addConstraint(Sketcher.Constraint("Parallel", 12, 15))
sketch5.addConstraint(Sketcher.Constraint("Parallel", 13, 16))
sketch5.addConstraint(Sketcher.Constraint("Horizontal", 0, 2, 3, 2))
sketch5.addConstraint(Sketcher.Constraint("Horizontal", 6, 2, 9, 2))
sketch5.addConstraint(Sketcher.Constraint("Horizontal", 9, 2, 12, 2))
sketch5.addConstraint(Sketcher.Constraint("Horizontal", 11, 2, 13, 2))
sketch5.addConstraint(Sketcher.Constraint("Horizontal", 12, 2, 15, 2))
sketch5.addConstraint(Sketcher.Constraint("Horizontal", 8, 2, 16, 2))
sketch5.addConstraint(Sketcher.Constraint("Vertical", 2, 2, 4, 2))
sketch5.addConstraint(Sketcher.Constraint("Vertical", 1, 2, 5, 2))
sketch5.addConstraint(Sketcher.Constraint("Vertical", 0, 2, 6, 2))
sketch5.addConstraint(Sketcher.Constraint("Vertical", 5, 2, 7, 2))
sketch5.addConstraint(Sketcher.Constraint("Vertical", 4, 2, 8, 2))
sketch5.addConstraint(Sketcher.Constraint("Vertical", 8, 2, 10, 2))
sketch5.addConstraint(Sketcher.Constraint("Equal", 11, 14))
sketch5.addConstraint(Sketcher.Constraint("Angle", 0, Q("-60 deg")))
sketch5.addConstraint(Sketcher.Constraint("DistanceX", 2, 2, 2, 1, Q("1.5 mm")))
sketch5.addConstraint(Sketcher.Constraint("DistanceY", 0, 2, -1, 1, Q("65 mm")))
sketch5.addConstraint(Sketcher.Constraint("DistanceX", 3, 2, 0, 2, Q("3 mm")))
sketch5.addConstraint(Sketcher.Constraint("DistanceX", 6, 2, 12, 2, Q("60 mm")))
sketch5.addConstraint(Sketcher.Constraint("DistanceX", -1, 1, 0, 2, Q("8.9 mm")))
sketch5.addConstraint(Sketcher.Constraint("DistanceY", 6, 2, -1, 1, Q("7.4 mm")))
pocket1 = body.newObject("PartDesign::Pocket", "Pocket")
pocket1.Profile = sketch5
pocket1.Type = "ThroughAll"
pocket1.Reversed = True

# Sketch on XZ plane
sketch6 = body.newObject("Sketcher::SketchObject", "Sketch005")
sketch6.AttachmentSupport = (doc.getObject("XZ_Plane"), [""])
sketch6.MapMode = "FlatFace"
sketch6.AttachmentOffset = App.Placement(App.Vector(0, 0, -3), App.Rotation())
sketch6.addGeometry(Part.LineSegment(App.Vector(80.6, -59.5, 0), App.Vector(79.4, -61.7, 0)), False)
sketch6.addGeometry(Part.LineSegment(App.Vector(79.4, -61.7, 0), App.Vector(76.9, -61.7, 0)), False)
sketch6.addGeometry(Part.LineSegment(App.Vector(76.9, -61.7, 0), App.Vector(75.6, -59.5, 0)), False)
sketch6.addGeometry(Part.LineSegment(App.Vector(75.6, -59.5, 0), App.Vector(76.9, -57.3, 0)), False)
sketch6.addGeometry(Part.LineSegment(App.Vector(76.9, -57.3, 0), App.Vector(79.4, -57.3, 0)), False)
sketch6.addGeometry(Part.LineSegment(App.Vector(79.4, -57.3, 0), App.Vector(80.6, -59.5, 0)), False)
sketch6.addConstraint(Sketcher.Constraint("Coincident", 0, 2, 1, 1))
sketch6.addConstraint(Sketcher.Constraint("Coincident", 1, 2, 2, 1))
sketch6.addConstraint(Sketcher.Constraint("Coincident", 2, 2, 3, 1))
sketch6.addConstraint(Sketcher.Constraint("Coincident", 3, 2, 4, 1))
sketch6.addConstraint(Sketcher.Constraint("Coincident", 4, 2, 5, 1))
sketch6.addConstraint(Sketcher.Constraint("Coincident", 5, 2, 0, 1))
sketch6.addConstraint(Sketcher.Constraint("Horizontal", 1))
sketch6.addConstraint(Sketcher.Constraint("Horizontal", 4))
sketch6.addConstraint(Sketcher.Constraint("Parallel", 0, 3))
sketch6.addConstraint(Sketcher.Constraint("Parallel", 2, 5))
sketch6.addConstraint(Sketcher.Constraint("Horizontal", 2, 2, 5, 2))
sketch6.addConstraint(Sketcher.Constraint("Vertical", 1, 2, 3, 2))
sketch6.addConstraint(Sketcher.Constraint("Vertical", 0, 2, 4, 2))
sketch6.addConstraint(Sketcher.Constraint("Angle", 0, Q("-120 deg")))
sketch6.addConstraint(Sketcher.Constraint("DistanceX", 1, 2, 1, 1, Q("2.5 mm")))
sketch6.addConstraint(Sketcher.Constraint("DistanceX", 2, 2, 5, 2, Q("5 mm")))
sketch6.addConstraint(Sketcher.Constraint("DistanceY", 2, 2, -1, 1, Q("59.5 mm")))
sketch6.addConstraint(Sketcher.Constraint("DistanceX", -1, 1, 0, 2, Q("79.351762 mm")))
pocket2 = body.newObject("PartDesign::Pocket", "Pocket001")
pocket2.Profile = sketch6
pocket2.Length = 3
pocket2.Reversed = True

# Sketch on XY plane
sketch7 = body.newObject("Sketcher::SketchObject", "Sketch006")
sketch7.AttachmentSupport = (doc.getObject("XY_Plane"), [""])
sketch7.MapMode = "FlatFace"
sketch7.AttachmentOffset = App.Placement(App.Vector(0, 0, -73), App.Rotation())
sketch7.addGeometry(Part.Circle(App.Vector(35.5, 20.1, 0), App.Vector(0, 0, 1), 1.9), False)
sketch7.addConstraint(Sketcher.Constraint("Diameter", 0, Q("3.8 mm")))
sketch7.addConstraint(Sketcher.Constraint("DistanceX", -1, 1, 0, 3, Q("35.5 mm")))
sketch7.addConstraint(Sketcher.Constraint("DistanceY", -1, 1, 0, 3, Q("20.1 mm")))
pocket3 = body.newObject("PartDesign::Pocket", "Pocket002")
pocket3.Profile = sketch7
pocket3.Length = 3
pocket3.Reversed = True

# Sketch on XZ plane
sketch8 = body.newObject("Sketcher::SketchObject", "Sketch007")
sketch8.AttachmentSupport = (doc.getObject("XZ_Plane"), [""])
sketch8.MapMode = "FlatFace"
sketch8.AttachmentOffset = App.Placement(App.Vector(0, 0, -25), App.Rotation())
sketch8.addGeometry(Part.LineSegment(App.Vector(3, -70, 0), App.Vector(3, -43, 0)), False)
sketch8.addGeometry(Part.LineSegment(App.Vector(3, -43, 0), App.Vector(24, -43, 0)), False)
sketch8.addGeometry(Part.LineSegment(App.Vector(24, -43, 0), App.Vector(24, -70, 0)), False)
sketch8.addGeometry(Part.LineSegment(App.Vector(24, -70, 0), App.Vector(3, -70, 0)), False)
sketch8.addGeometry(Part.Circle(App.Vector(14, -47, 0), App.Vector(0, 0, 1), 2), False)
sketch8.addGeometry(Part.Circle(App.Vector(7.4, -65, 0), App.Vector(0, 0, 1), 4), False)
sketch8.addConstraint(Sketcher.Constraint("Coincident", 0, 2, 1, 1))
sketch8.addConstraint(Sketcher.Constraint("Coincident", 1, 2, 2, 1))
sketch8.addConstraint(Sketcher.Constraint("Coincident", 2, 2, 3, 1))
sketch8.addConstraint(Sketcher.Constraint("Coincident", 3, 2, 0, 1))
sketch8.addConstraint(Sketcher.Constraint("Vertical", 0))
sketch8.addConstraint(Sketcher.Constraint("Horizontal", 1))
sketch8.addConstraint(Sketcher.Constraint("Vertical", 2))
sketch8.addConstraint(Sketcher.Constraint("Horizontal", 3))
sketch8.addConstraint(Sketcher.Constraint("Diameter", 4, Q("4 mm")))
sketch8.addConstraint(Sketcher.Constraint("Diameter", 5, Q("8 mm")))
sketch8.addConstraint(Sketcher.Constraint("DistanceX", 1, 1, 1, 2, Q("21 mm")))
sketch8.addConstraint(Sketcher.Constraint("DistanceY", 0, 1, 0, 2, Q("27 mm")))
sketch8.addConstraint(Sketcher.Constraint("DistanceX", -1, 1, 4, 3, Q("14 mm")))
sketch8.addConstraint(Sketcher.Constraint("DistanceY", 4, 3, -1, 1, Q("47 mm")))
sketch8.addConstraint(Sketcher.Constraint("DistanceY", 5, 3, -1, 1, Q("65 mm")))
sketch8.addConstraint(Sketcher.Constraint("DistanceX", -1, 1, 0, 2, Q("3 mm")))
sketch8.addConstraint(Sketcher.Constraint("DistanceY", 0, 2, -1, 1, Q("43 mm")))
sketch8.addConstraint(Sketcher.Constraint("DistanceX", -1, 1, 5, 3, Q("7.4 mm")))
pad5 = body.newObject("PartDesign::Pad", "Pad004")
pad5.Profile = sketch8
pad5.Length = 1.5

# Sketch on XZ plane
sketch9 = body.newObject("Sketcher::SketchObject", "Sketch008")
sketch9.AttachmentSupport = (doc.getObject("XZ_Plane"), [""])
sketch9.MapMode = "FlatFace"
sketch9.AttachmentOffset = App.Placement(App.Vector(0, 0, -3), App.Rotation())
sketch9.addGeometry(Part.Circle(App.Vector(97, -20.5, 0), App.Vector(0, 0, 1), 1.5), False)
sketch9.addGeometry(Part.Circle(App.Vector(84, -3.5, 0), App.Vector(0, 0, 1), 1.5), False)
sketch9.addGeometry(Part.Circle(App.Vector(90.5, -12, 0), App.Vector(0, 0, 1), 8.2), False)
sketch9.addConstraint(Sketcher.Constraint("Equal", 0, 1))
sketch9.addConstraint(Sketcher.Constraint("Diameter", 0, Q("3 mm")))
sketch9.addConstraint(Sketcher.Constraint("Diameter", 2, Q("16.5 mm")))
sketch9.addConstraint(Sketcher.Constraint("DistanceX", -1, 1, 0, 3, Q("97 mm")))
sketch9.addConstraint(Sketcher.Constraint("DistanceX", -1, 1, 1, 3, Q("84 mm")))
sketch9.addConstraint(Sketcher.Constraint("DistanceY", 2, 3, -1, 1, Q("12 mm")))
sketch9.addConstraint(Sketcher.Constraint("DistanceY", 0, 3, 1, 3, Q("17 mm")))
sketch9.addConstraint(Sketcher.Constraint("DistanceY", 0, 3, -1, 1, Q("20.5 mm")))
sketch9.addConstraint(Sketcher.Constraint("DistanceX", -1, 1, 2, 3, Q("90.5 mm")))
pocket4 = body.newObject("PartDesign::Pocket", "Pocket003")
pocket4.Profile = sketch9
pocket4.Length = 3
pocket4.Reversed = True

# Sketch on XZ plane
sketch10 = body.newObject("Sketcher::SketchObject", "Sketch009")
sketch10.AttachmentSupport = (doc.getObject("XZ_Plane"), [""])
sketch10.MapMode = "FlatFace"
sketch10.AttachmentOffset = App.Placement(App.Vector(0, 0, -3), App.Rotation())
sketch10.addGeometry(Part.LineSegment(App.Vector(62.5, -17.4, 0), App.Vector(62.5, -11.4, 0)), False)
sketch10.addGeometry(Part.LineSegment(App.Vector(62.5, -11.4, 0), App.Vector(65.5, -11.4, 0)), False)
sketch10.addGeometry(Part.LineSegment(App.Vector(65.5, -11.4, 0), App.Vector(65.5, -17.4, 0)), False)
sketch10.addGeometry(Part.LineSegment(App.Vector(65.5, -17.4, 0), App.Vector(62.5, -17.4, 0)), False)
sketch10.addGeometry(Part.LineSegment(App.Vector(62.5, -53.4, 0), App.Vector(62.5, -47.4, 0)), False)
sketch10.addGeometry(Part.LineSegment(App.Vector(62.5, -47.4, 0), App.Vector(65.5, -47.4, 0)), False)
sketch10.addGeometry(Part.LineSegment(App.Vector(65.5, -47.4, 0), App.Vector(65.5, -53.4, 0)), False)
sketch10.addGeometry(Part.LineSegment(App.Vector(65.5, -53.4, 0), App.Vector(62.5, -53.4, 0)), False)
sketch10.addGeometry(Part.LineSegment(App.Vector(12.5, -17.6, 0), App.Vector(12.5, -11.6, 0)), False)
sketch10.addGeometry(Part.LineSegment(App.Vector(12.5, -11.6, 0), App.Vector(15.5, -11.6, 0)), False)
sketch10.addGeometry(Part.LineSegment(App.Vector(15.5, -11.6, 0), App.Vector(15.5, -17.6, 0)), False)
sketch10.addGeometry(Part.LineSegment(App.Vector(15.5, -17.6, 0), App.Vector(12.5, -17.6, 0)), False)
sketch10.addGeometry(Part.LineSegment(App.Vector(12.5, -53.6, 0), App.Vector(12.5, -47.6, 0)), False)
sketch10.addGeometry(Part.LineSegment(App.Vector(12.5, -47.6, 0), App.Vector(15.5, -47.6, 0)), False)
sketch10.addGeometry(Part.LineSegment(App.Vector(15.5, -47.6, 0), App.Vector(15.5, -53.6, 0)), False)
sketch10.addGeometry(Part.LineSegment(App.Vector(15.5, -53.6, 0), App.Vector(12.5, -53.6, 0)), False)
sketch10.addConstraint(Sketcher.Constraint("Coincident", 0, 2, 1, 1))
sketch10.addConstraint(Sketcher.Constraint("Coincident", 1, 2, 2, 1))
sketch10.addConstraint(Sketcher.Constraint("Coincident", 2, 2, 3, 1))
sketch10.addConstraint(Sketcher.Constraint("Coincident", 3, 2, 0, 1))
sketch10.addConstraint(Sketcher.Constraint("Coincident", 4, 2, 5, 1))
sketch10.addConstraint(Sketcher.Constraint("Coincident", 5, 2, 6, 1))
sketch10.addConstraint(Sketcher.Constraint("Coincident", 6, 2, 7, 1))
sketch10.addConstraint(Sketcher.Constraint("Coincident", 7, 2, 4, 1))
sketch10.addConstraint(Sketcher.Constraint("Coincident", 8, 2, 9, 1))
sketch10.addConstraint(Sketcher.Constraint("Coincident", 9, 2, 10, 1))
sketch10.addConstraint(Sketcher.Constraint("Coincident", 10, 2, 11, 1))
sketch10.addConstraint(Sketcher.Constraint("Coincident", 11, 2, 8, 1))
sketch10.addConstraint(Sketcher.Constraint("Coincident", 12, 2, 13, 1))
sketch10.addConstraint(Sketcher.Constraint("Coincident", 13, 2, 14, 1))
sketch10.addConstraint(Sketcher.Constraint("Coincident", 14, 2, 15, 1))
sketch10.addConstraint(Sketcher.Constraint("Coincident", 15, 2, 12, 1))
sketch10.addConstraint(Sketcher.Constraint("Vertical", 0))
sketch10.addConstraint(Sketcher.Constraint("Horizontal", 1))
sketch10.addConstraint(Sketcher.Constraint("Vertical", 2))
sketch10.addConstraint(Sketcher.Constraint("Horizontal", 3))
sketch10.addConstraint(Sketcher.Constraint("Vertical", 4))
sketch10.addConstraint(Sketcher.Constraint("Horizontal", 5))
sketch10.addConstraint(Sketcher.Constraint("Vertical", 6))
sketch10.addConstraint(Sketcher.Constraint("Horizontal", 7))
sketch10.addConstraint(Sketcher.Constraint("Vertical", 8))
sketch10.addConstraint(Sketcher.Constraint("Horizontal", 9))
sketch10.addConstraint(Sketcher.Constraint("Vertical", 10))
sketch10.addConstraint(Sketcher.Constraint("Horizontal", 11))
sketch10.addConstraint(Sketcher.Constraint("Vertical", 12))
sketch10.addConstraint(Sketcher.Constraint("Horizontal", 13))
sketch10.addConstraint(Sketcher.Constraint("Vertical", 14))
sketch10.addConstraint(Sketcher.Constraint("Horizontal", 15))
sketch10.addConstraint(Sketcher.Constraint("Vertical", 3, 2, 4, 2))
sketch10.addConstraint(Sketcher.Constraint("Vertical", 2, 2, 5, 2))
sketch10.addConstraint(Sketcher.Constraint("Vertical", 11, 2, 12, 2))
sketch10.addConstraint(Sketcher.Constraint("Vertical", 10, 2, 13, 2))
sketch10.addConstraint(Sketcher.Constraint("Equal", 7, 9))
sketch10.addConstraint(Sketcher.Constraint("Equal", 2, 4))
sketch10.addConstraint(Sketcher.Constraint("Equal", 6, 8))
sketch10.addConstraint(Sketcher.Constraint("Equal", 10, 12))
sketch10.addConstraint(Sketcher.Constraint("DistanceX", 1, 1, 1, 2, Q("3 mm")))
sketch10.addConstraint(Sketcher.Constraint("DistanceY", 0, 1, 0, 2, Q("6 mm")))
sketch10.addConstraint(Sketcher.Constraint("DistanceY", 4, 2, 3, 2, Q("30 mm")))
sketch10.addConstraint(Sketcher.Constraint("DistanceX", 8, 2, 0, 2, Q("50 mm")))
sketch10.addConstraint(Sketcher.Constraint("DistanceY", 12, 2, 11, 2, Q("30 mm")))
sketch10.addConstraint(Sketcher.Constraint("DistanceX", -1, 1, 0, 2, Q("62.5 mm")))
sketch10.addConstraint(Sketcher.Constraint("DistanceY", 0, 2, -1, 1, Q("11.4 mm")))
sketch10.addConstraint(Sketcher.Constraint("DistanceY", 8, 2, -1, 1, Q("11.584177 mm")))
pocket5 = body.newObject("PartDesign::Pocket", "Pocket004")
pocket5.Profile = sketch10
pocket5.Length = 3
pocket5.Reversed = True
doc.recompute()

fillet = body.newObject("PartDesign::Fillet", "Fillet")
fillet.Base = (pocket5, edges_at(pocket5, [
    (62.5, 3, -14.4),
    (15.5, 3, -50.584),
    (15.5, 3, -14.584),
    (62.5, 3, -50.4),
]))
fillet.Radius = 2.5

doc.recompute()
